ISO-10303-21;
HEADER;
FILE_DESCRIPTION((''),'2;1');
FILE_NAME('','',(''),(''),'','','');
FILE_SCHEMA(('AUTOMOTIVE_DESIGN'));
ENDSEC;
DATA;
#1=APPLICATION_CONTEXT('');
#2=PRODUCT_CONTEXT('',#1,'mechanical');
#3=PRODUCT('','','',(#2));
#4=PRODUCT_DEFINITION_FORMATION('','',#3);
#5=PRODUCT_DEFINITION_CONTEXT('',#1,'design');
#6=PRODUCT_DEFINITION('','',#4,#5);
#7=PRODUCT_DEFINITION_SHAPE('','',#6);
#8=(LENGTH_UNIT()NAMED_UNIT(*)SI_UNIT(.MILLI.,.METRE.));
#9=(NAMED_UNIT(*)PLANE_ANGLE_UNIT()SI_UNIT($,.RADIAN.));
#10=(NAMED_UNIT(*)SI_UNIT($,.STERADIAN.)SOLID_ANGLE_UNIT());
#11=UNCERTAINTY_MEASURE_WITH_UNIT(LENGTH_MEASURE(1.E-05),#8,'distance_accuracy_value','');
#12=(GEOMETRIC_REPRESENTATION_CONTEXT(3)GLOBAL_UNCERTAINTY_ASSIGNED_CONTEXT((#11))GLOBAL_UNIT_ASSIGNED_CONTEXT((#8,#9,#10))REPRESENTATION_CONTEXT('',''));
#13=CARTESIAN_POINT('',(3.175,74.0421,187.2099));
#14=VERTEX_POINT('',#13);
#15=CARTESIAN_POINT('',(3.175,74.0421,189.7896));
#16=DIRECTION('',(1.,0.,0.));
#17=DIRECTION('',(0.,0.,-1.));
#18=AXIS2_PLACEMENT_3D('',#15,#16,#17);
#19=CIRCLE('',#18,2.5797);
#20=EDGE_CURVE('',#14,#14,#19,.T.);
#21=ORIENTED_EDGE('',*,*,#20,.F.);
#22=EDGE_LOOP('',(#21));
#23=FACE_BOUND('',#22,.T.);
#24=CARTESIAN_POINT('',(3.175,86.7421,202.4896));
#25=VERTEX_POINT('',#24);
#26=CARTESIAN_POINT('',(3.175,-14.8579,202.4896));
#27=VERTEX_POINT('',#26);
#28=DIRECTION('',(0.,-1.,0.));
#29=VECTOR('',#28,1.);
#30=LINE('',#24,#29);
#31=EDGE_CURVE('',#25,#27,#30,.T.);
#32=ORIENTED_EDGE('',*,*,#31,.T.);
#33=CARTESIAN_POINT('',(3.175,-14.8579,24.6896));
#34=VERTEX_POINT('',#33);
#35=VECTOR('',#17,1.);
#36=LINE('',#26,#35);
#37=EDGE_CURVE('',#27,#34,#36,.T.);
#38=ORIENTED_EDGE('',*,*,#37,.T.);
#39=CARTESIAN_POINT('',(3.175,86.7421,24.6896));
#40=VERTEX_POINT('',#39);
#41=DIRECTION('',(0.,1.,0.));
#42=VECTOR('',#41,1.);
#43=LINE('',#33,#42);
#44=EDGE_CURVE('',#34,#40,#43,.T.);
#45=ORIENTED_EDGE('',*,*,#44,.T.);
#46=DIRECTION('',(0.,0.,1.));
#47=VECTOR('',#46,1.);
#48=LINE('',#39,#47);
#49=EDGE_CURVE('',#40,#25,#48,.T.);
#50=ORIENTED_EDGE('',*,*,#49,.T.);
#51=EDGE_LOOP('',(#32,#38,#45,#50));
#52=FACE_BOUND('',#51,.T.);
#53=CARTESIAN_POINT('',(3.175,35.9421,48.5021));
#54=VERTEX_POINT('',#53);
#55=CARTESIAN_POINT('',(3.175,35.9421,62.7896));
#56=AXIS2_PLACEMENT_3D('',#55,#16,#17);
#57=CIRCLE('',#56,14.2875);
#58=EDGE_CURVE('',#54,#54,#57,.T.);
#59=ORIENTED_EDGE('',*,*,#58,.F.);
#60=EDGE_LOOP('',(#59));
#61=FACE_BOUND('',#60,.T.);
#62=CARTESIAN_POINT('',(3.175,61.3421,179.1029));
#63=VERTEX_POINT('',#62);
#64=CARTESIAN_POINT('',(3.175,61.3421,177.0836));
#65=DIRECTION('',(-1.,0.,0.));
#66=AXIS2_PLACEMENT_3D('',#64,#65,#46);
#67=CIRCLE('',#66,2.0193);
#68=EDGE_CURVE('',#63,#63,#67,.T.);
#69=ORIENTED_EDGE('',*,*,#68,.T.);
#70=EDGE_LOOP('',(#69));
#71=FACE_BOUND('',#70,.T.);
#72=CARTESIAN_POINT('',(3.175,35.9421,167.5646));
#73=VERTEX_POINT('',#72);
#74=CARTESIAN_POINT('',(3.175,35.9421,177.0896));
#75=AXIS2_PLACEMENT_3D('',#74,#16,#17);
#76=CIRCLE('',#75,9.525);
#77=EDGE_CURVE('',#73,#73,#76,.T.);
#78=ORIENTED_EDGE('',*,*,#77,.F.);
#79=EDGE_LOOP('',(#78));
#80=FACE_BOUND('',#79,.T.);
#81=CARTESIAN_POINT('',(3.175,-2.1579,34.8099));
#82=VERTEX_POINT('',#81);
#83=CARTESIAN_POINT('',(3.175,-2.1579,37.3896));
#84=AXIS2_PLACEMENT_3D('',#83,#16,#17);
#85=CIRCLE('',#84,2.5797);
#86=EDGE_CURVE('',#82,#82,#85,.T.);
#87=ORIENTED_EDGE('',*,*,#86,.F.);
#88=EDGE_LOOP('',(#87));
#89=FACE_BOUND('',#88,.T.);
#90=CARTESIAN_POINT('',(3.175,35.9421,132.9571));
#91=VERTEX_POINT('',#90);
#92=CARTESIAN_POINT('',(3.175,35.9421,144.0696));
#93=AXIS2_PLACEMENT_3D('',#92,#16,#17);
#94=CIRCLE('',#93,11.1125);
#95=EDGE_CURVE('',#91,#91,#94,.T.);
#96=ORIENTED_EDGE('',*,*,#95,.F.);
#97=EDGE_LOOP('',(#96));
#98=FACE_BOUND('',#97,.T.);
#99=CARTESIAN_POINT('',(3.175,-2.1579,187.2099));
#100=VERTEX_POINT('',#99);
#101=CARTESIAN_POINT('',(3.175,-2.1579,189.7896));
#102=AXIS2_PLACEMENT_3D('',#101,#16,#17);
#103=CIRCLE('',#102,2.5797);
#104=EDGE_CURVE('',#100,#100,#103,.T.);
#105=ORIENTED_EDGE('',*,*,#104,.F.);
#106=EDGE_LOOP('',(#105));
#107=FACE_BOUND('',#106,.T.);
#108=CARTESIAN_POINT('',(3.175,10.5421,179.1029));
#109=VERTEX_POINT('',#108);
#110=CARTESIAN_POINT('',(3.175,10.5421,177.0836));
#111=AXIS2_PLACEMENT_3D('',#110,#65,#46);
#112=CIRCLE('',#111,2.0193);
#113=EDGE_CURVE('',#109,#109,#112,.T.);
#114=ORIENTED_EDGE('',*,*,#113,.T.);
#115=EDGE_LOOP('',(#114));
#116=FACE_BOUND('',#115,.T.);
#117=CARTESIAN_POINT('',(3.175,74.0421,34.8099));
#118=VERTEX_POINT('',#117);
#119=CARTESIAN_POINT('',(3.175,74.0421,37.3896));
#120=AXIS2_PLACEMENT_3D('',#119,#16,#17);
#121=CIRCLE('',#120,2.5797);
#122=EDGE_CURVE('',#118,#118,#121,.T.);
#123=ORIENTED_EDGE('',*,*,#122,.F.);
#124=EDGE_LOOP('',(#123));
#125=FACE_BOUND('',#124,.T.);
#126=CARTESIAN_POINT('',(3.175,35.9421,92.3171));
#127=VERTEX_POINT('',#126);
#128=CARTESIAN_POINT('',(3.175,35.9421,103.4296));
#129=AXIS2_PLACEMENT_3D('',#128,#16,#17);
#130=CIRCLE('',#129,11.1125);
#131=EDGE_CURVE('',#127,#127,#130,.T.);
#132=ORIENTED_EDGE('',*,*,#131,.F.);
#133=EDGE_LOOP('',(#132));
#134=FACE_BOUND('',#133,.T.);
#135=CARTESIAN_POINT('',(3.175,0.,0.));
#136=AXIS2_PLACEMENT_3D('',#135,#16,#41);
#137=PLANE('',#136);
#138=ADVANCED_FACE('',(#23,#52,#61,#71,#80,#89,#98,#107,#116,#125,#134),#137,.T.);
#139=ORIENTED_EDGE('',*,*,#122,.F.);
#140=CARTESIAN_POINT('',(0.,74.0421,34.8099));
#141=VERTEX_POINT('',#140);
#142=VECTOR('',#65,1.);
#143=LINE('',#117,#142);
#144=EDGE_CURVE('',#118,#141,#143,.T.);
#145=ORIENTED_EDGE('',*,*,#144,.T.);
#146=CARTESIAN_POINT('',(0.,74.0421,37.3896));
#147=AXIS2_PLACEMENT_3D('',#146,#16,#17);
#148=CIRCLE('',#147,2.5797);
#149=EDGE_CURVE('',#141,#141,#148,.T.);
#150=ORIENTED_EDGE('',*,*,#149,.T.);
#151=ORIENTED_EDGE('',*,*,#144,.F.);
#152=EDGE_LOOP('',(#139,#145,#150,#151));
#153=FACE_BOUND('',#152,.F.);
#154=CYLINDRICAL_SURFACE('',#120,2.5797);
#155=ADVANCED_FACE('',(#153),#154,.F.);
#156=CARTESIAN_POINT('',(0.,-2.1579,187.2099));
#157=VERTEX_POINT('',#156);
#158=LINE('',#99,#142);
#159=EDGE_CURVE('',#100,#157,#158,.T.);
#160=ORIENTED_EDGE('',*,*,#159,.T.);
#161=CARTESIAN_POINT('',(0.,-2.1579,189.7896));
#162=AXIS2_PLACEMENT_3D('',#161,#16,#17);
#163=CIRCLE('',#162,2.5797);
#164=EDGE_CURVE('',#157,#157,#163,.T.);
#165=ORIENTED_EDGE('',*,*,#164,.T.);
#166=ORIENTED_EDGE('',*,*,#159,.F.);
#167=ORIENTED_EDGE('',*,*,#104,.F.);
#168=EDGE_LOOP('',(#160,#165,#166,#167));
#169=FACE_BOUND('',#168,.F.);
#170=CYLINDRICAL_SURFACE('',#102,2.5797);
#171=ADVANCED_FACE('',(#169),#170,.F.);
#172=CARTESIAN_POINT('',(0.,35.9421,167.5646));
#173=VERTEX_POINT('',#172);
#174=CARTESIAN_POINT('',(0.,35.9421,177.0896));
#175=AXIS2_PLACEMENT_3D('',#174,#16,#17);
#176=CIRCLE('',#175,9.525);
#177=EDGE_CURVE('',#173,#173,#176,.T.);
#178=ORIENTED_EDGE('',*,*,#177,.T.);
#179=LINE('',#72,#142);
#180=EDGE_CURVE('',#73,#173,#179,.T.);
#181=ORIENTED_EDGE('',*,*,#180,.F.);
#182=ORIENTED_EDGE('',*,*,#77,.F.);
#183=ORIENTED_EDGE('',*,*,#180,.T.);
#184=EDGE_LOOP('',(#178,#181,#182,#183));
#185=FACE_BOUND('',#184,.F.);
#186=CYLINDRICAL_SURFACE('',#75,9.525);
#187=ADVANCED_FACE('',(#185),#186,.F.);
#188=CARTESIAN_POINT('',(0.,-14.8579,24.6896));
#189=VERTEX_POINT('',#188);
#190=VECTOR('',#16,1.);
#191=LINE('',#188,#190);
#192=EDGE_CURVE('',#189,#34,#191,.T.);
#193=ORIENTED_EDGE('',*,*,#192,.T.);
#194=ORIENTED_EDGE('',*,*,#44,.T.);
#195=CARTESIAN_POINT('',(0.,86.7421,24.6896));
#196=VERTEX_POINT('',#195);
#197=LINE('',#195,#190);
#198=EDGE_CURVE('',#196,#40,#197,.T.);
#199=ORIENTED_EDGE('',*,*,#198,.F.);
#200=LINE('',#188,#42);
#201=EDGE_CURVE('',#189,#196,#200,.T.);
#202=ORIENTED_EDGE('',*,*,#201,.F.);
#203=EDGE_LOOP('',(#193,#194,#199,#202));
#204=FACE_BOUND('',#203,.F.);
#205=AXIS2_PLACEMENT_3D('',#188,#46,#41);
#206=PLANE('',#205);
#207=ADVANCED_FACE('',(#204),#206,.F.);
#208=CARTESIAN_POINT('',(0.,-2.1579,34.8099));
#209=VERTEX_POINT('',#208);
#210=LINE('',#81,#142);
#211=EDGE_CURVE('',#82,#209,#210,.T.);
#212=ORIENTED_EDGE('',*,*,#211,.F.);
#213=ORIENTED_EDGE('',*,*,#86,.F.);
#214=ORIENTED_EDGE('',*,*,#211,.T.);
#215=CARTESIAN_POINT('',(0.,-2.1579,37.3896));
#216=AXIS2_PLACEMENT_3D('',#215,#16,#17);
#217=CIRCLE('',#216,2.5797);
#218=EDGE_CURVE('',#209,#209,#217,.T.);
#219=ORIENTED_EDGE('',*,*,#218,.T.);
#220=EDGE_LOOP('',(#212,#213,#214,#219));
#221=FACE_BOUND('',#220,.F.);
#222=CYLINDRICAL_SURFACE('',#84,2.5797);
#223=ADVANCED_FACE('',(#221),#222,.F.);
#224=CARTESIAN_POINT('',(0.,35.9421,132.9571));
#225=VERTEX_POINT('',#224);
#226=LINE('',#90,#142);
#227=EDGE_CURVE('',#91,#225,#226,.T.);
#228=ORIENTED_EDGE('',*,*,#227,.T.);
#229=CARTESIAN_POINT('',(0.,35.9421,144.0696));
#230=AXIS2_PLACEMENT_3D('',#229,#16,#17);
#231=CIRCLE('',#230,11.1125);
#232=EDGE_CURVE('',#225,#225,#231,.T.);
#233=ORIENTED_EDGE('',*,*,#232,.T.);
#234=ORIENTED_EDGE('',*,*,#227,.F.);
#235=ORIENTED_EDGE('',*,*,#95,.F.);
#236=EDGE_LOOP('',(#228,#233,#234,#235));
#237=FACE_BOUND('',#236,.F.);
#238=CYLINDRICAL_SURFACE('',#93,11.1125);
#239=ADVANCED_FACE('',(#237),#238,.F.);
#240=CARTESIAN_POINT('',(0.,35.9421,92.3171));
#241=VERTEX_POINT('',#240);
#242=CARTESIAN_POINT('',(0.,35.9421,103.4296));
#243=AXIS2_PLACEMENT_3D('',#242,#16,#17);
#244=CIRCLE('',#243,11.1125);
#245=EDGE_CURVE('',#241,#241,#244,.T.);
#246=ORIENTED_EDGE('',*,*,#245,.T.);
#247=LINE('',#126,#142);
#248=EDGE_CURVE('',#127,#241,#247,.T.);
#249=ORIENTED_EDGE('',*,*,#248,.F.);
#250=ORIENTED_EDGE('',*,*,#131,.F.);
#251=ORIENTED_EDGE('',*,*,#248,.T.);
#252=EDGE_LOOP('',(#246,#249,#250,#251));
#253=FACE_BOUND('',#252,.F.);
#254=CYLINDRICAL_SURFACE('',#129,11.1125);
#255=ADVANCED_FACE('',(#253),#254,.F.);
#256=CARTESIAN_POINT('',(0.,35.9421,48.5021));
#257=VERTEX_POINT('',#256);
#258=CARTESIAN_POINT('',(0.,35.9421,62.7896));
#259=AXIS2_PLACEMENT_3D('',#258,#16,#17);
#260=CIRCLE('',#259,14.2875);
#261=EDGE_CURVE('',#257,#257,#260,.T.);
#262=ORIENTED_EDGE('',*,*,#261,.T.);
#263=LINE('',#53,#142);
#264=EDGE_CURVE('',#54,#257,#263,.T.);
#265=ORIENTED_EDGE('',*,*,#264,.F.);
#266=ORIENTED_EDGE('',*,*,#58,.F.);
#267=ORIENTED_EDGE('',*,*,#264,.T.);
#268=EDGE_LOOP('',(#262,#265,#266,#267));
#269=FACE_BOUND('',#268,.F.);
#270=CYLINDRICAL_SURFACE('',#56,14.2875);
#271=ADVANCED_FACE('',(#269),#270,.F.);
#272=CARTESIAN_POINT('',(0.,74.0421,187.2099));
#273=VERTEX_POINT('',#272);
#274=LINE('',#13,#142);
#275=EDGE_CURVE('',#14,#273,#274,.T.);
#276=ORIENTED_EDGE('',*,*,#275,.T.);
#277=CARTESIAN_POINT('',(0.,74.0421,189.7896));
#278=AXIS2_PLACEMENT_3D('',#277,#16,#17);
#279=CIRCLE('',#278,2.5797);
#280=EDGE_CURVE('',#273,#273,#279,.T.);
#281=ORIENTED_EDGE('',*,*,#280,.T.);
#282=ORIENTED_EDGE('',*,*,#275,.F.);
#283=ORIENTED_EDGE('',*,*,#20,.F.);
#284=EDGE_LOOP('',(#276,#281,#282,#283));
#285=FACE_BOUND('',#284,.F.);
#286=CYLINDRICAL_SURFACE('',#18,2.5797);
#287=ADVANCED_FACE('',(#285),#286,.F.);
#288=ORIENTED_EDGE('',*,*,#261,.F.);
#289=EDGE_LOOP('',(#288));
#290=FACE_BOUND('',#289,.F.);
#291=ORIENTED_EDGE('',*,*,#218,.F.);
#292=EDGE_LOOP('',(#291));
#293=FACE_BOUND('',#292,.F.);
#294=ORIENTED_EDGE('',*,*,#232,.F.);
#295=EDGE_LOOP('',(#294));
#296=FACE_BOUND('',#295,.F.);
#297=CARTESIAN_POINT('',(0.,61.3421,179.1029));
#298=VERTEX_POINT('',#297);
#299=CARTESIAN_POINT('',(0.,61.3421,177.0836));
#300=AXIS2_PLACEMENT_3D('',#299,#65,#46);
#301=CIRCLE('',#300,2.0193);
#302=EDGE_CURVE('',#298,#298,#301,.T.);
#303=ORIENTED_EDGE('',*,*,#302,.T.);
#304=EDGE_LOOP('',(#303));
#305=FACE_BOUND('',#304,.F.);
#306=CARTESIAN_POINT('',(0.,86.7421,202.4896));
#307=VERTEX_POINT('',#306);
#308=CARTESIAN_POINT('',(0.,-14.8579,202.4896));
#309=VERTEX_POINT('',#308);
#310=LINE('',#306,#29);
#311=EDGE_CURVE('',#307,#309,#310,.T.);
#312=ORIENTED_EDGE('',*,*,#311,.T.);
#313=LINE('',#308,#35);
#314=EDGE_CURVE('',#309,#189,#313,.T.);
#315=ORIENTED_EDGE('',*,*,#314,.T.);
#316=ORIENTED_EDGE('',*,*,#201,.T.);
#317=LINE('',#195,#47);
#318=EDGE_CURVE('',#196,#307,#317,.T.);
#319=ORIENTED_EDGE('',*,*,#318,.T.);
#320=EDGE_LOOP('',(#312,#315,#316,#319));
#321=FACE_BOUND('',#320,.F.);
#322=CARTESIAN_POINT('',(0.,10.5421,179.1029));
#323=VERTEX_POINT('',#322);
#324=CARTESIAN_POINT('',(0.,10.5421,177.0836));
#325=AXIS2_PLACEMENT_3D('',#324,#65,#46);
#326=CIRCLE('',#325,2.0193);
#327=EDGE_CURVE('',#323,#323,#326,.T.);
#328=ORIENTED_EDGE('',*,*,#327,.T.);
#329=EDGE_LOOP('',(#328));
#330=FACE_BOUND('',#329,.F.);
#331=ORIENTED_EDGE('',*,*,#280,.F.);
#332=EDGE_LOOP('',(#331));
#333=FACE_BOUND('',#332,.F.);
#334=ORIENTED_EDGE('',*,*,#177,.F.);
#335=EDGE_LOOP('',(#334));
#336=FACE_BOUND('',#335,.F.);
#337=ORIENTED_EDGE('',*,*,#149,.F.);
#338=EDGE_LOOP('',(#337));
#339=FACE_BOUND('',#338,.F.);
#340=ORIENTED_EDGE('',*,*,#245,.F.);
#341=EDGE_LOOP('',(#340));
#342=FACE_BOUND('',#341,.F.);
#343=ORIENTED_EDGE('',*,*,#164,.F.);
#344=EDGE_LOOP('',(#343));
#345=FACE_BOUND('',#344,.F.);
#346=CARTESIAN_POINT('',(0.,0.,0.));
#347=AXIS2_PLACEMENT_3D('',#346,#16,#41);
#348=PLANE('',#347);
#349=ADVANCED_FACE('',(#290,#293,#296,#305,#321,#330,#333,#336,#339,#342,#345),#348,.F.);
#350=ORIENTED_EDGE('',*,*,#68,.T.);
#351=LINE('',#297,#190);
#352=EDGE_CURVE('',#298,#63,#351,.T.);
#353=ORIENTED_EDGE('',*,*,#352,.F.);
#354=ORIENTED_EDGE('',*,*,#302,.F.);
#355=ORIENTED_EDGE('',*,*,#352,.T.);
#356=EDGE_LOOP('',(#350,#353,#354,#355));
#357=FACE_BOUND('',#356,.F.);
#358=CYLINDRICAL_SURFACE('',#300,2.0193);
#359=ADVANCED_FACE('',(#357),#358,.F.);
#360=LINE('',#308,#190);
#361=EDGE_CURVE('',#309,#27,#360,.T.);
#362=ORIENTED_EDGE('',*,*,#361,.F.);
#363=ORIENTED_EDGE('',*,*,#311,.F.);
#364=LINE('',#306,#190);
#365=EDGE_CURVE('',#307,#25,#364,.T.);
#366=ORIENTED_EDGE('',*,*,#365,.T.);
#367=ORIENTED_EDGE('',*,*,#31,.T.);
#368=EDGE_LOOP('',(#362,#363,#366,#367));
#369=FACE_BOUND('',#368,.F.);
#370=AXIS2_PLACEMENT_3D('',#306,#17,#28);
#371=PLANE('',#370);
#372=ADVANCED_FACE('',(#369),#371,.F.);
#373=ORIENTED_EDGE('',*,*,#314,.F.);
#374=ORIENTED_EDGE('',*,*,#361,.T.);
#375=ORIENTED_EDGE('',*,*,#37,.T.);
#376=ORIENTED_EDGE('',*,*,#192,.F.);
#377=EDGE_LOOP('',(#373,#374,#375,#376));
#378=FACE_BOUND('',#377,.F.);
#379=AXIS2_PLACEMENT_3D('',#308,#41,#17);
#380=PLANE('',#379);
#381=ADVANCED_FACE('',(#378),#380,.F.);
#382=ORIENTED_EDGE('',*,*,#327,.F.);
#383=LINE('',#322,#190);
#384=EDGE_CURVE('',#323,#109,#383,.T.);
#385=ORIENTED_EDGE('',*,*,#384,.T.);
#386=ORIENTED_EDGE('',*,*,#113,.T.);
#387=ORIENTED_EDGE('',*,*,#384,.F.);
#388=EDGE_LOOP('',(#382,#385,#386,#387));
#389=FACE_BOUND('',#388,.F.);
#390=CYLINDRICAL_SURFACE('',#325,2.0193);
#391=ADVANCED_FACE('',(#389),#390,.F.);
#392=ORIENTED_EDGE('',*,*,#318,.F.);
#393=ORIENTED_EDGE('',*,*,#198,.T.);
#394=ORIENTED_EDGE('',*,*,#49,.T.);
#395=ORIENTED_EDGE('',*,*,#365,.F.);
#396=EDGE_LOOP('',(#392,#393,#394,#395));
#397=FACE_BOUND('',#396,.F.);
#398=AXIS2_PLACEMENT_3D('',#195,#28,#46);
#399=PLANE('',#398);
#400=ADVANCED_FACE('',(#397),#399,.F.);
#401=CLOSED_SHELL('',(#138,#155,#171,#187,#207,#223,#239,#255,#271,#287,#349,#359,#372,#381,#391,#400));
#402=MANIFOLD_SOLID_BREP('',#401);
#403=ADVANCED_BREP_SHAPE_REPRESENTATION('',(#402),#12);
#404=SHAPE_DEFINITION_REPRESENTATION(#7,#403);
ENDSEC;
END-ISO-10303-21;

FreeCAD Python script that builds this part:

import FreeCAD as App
import Part
import Sketcher
Q = App.Units.Quantity

doc = App.newDocument("Part")
params = doc.addObject("Spreadsheet::Sheet", "Params")
for row, (alias, value) in enumerate([
    ("sketch1_width", "4 in"),
    ("sketch1_height", "7 in"),
    ("pad1_length", "0.125 in"),
    ("sketch2_diameter", "0.75 in"),
    ("sketch2_diameter2", "0.875 in"),
    ("sketch2_diameter3", "1.125 in"),
    ("pocket1_length", "0.5 in"),
    ("sketch3_diameter", "0.159 in"),
    ("pocket2_length", "1 in"),
    ("sketch4_diameter", "0.203126 in"),
    ("pocket3_length", "1 in"),
], start=1):
    params.set(f"A{row}", alias)
    params.set(f"B{row}", "=" + value)
    params.setAlias(f"B{row}", alias)

body = doc.addObject("PartDesign::Body", "Body")

# Sketch on YZ plane
sketch1 = body.newObject("Sketcher::SketchObject", "Sketch")
sketch1.AttachmentSupport = (doc.getObject("YZ_Plane"), [""])
sketch1.MapMode = "FlatFace"
sketch1.addGeometry([
    Part.LineSegment(App.Vector(87, 25, 0), App.Vector(87, 202, 0)),
    Part.LineSegment(App.Vector(87, 202, 0), App.Vector(-15, 202, 0)),
    Part.LineSegment(App.Vector(-15, 202, 0), App.Vector(-15, 25, 0)),
    Part.LineSegment(App.Vector(-15, 25, 0), App.Vector(87, 25, 0)),
], False)
sketch1.addConstraint([
    Sketcher.Constraint("Coincident", 0, 2, 1, 1),
    Sketcher.Constraint("Coincident", 1, 2, 2, 1),
    Sketcher.Constraint("Coincident", 2, 2, 3, 1),
    Sketcher.Constraint("Coincident", 3, 2, 0, 1),
    Sketcher.Constraint("Vertical", 0),
    Sketcher.Constraint("Horizontal", 1),
    Sketcher.Constraint("Vertical", 2),
    Sketcher.Constraint("Horizontal", 3),
    Sketcher.Constraint("DistanceX", 1, 2, 1, 1, Q("4 in")),
    Sketcher.Constraint("DistanceY", 0, 1, 0, 2, Q("7 in")),
    Sketcher.Constraint("DistanceX", -1, 1, 0, 2, Q("86.742 mm")),
    Sketcher.Constraint("DistanceY", -1, 1, 0, 2, Q("202.4896 mm")),
])
sketch1.setExpression("Constraints[8]", "Params.sketch1_width")
sketch1.setExpression("Constraints[9]", "Params.sketch1_height")
pad1 = body.newObject("PartDesign::Pad", "Pad")
pad1.Profile = sketch1
pad1.setExpression("Length", "Params.pad1_length")

# Sketch on YZ plane
sketch2 = body.newObject("Sketcher::SketchObject", "Sketch001")
sketch2.AttachmentSupport = (doc.getObject("YZ_Plane"), [""])
sketch2.MapMode = "FlatFace"
sketch2.AttachmentOffset = App.Placement(App.Vector(0, 0, 0.125 * 25.4), App.Rotation())
sketch2.addGeometry([
    Part.Circle(App.Vector(36, 144, 0), App.Vector(0, 0, 1), 11),
    Part.Circle(App.Vector(36, 103, 0), App.Vector(0, 0, 1), 11),
    Part.Circle(App.Vector(36, 63, 0), App.Vector(0, 0, 1), 14),
    Part.Circle(App.Vector(36, 177, 0), App.Vector(0, 0, 1), 10),
], False)
sketch2.addConstraint([
    Sketcher.Constraint("Equal", 0, 1),
    Sketcher.Constraint("Vertical", 0, 3, 1, 3),
    Sketcher.Constraint("Vertical", 1, 3, 2, 3),
    Sketcher.Constraint("Vertical", 2, 3, 3, 3),
    Sketcher.Constraint("Diameter", 3, Q("0.75 in")),
    Sketcher.Constraint("Diameter", 0, Q("0.875 in")),
    Sketcher.Constraint("Diameter", 2, Q("1.125 in")),
    Sketcher.Constraint("DistanceY", 1, 3, 0, 3, Q("1.6 in")),
    Sketcher.Constraint("DistanceY", 2, 3, 1, 3, Q("1.6 in")),
    Sketcher.Constraint("DistanceY", 0, 3, 3, 3, Q("1.3 in")),
    Sketcher.Constraint("DistanceX", -1, 1, 0, 3, Q("35.942 mm")),
    Sketcher.Constraint("DistanceY", -1, 1, 0, 3, Q("144.0696 mm")),
])
sketch2.setExpression("Constraints[4]", "Params.sketch2_diameter")
sketch2.setExpression("Constraints[5]", "Params.sketch2_diameter2")
sketch2.setExpression("Constraints[6]", "Params.sketch2_diameter3")
pocket1 = body.newObject("PartDesign::Pocket", "Pocket")
pocket1.Profile = sketch2
pocket1.setExpression("Length", "Params.pocket1_length")

# Sketch on YZ plane
sketch3 = body.newObject("Sketcher::SketchObject", "Sketch002")
sketch3.AttachmentSupport = (doc.getObject("YZ_Plane"), [""])
sketch3.MapMode = "FlatFace"
sketch3.addGeometry([
    Part.Circle(App.Vector(61.3, 177.1, 0), App.Vector(0, 0, 1), 2),
    Part.Circle(App.Vector(10.5, 177.1, 0), App.Vector(0, 0, 1), 2),
], False)
sketch3.addConstraint([
    Sketcher.Constraint("Equal", 0, 1),
    Sketcher.Constraint("Horizontal", 0, 3, 1, 3),
    Sketcher.Constraint("Diameter", 0, Q("0.159 in")),
    Sketcher.Constraint("DistanceX", 1, 3, 0, 3, Q("2 in")),
    Sketcher.Constraint("DistanceY", -1, 1, 0, 3, Q("6.9718 in")),
    Sketcher.Constraint("DistanceX", -1, 1, 0, 3, Q("61.342 mm")),
])
sketch3.setExpression("Constraints[2]", "Params.sketch3_diameter")
pocket2 = body.newObject("PartDesign::Pocket", "Pocket001")
pocket2.Profile = sketch3
pocket2.setExpression("Length", "Params.pocket2_length")
pocket2.Reversed = True

# Sketch on YZ plane
sketch4 = body.newObject("Sketcher::SketchObject", "Sketch003")
sketch4.AttachmentSupport = (doc.getObject("YZ_Plane"), [""])
sketch4.MapMode = "FlatFace"
sketch4.AttachmentOffset = App.Placement(App.Vector(0, 0, 0.125 * 25.4), App.Rotation())
sketch4.addGeometry([
    Part.Circle(App.Vector(74, 189.8, 0), App.Vector(0, 0, 1), 2.6),
    Part.Circle(App.Vector(74, 37.4, 0), App.Vector(0, 0, 1), 2.6),
    Part.Circle(App.Vector(-2.2, 37.4, 0), App.Vector(0, 0, 1), 2.6),
    Part.Circle(App.Vector(-2.2, 189.8, 0), App.Vector(0, 0, 1), 2.6),
], False)
sketch4.addConstraint([
    Sketcher.Constraint("Equal", 0, 1),
    Sketcher.Constraint("Equal", 1, 2),
    Sketcher.Constraint("Equal", 2, 3),
    Sketcher.Constraint("Horizontal", 1, 3, 2, 3),
    Sketcher.Constraint("Horizontal", 0, 3, 3, 3),
    Sketcher.Constraint("Vertical", 0, 3, 1, 3),
    Sketcher.Constraint("Vertical", 2, 3, 3, 3),
    Sketcher.Constraint("Diameter", 0, Q("0.203126 in")),
    Sketcher.Constraint("DistanceY", 1, 3, 0, 3, Q("6 in")),
    Sketcher.Constraint("DistanceX", 2, 3, 1, 3, Q("3 in")),
    Sketcher.Constraint("DistanceX", -1, 1, 0, 3, Q("74.042 mm")),
    Sketcher.Constraint("DistanceY", -1, 1, 0, 3, Q("189.7896 mm")),
])
sketch4.setExpression("Constraints[7]", "Params.sketch4_diameter")
pocket3 = body.newObject("PartDesign::Pocket", "Pocket002")
pocket3.Profile = sketch4
pocket3.setExpression("Length", "Params.pocket3_length")

doc.recompute()
